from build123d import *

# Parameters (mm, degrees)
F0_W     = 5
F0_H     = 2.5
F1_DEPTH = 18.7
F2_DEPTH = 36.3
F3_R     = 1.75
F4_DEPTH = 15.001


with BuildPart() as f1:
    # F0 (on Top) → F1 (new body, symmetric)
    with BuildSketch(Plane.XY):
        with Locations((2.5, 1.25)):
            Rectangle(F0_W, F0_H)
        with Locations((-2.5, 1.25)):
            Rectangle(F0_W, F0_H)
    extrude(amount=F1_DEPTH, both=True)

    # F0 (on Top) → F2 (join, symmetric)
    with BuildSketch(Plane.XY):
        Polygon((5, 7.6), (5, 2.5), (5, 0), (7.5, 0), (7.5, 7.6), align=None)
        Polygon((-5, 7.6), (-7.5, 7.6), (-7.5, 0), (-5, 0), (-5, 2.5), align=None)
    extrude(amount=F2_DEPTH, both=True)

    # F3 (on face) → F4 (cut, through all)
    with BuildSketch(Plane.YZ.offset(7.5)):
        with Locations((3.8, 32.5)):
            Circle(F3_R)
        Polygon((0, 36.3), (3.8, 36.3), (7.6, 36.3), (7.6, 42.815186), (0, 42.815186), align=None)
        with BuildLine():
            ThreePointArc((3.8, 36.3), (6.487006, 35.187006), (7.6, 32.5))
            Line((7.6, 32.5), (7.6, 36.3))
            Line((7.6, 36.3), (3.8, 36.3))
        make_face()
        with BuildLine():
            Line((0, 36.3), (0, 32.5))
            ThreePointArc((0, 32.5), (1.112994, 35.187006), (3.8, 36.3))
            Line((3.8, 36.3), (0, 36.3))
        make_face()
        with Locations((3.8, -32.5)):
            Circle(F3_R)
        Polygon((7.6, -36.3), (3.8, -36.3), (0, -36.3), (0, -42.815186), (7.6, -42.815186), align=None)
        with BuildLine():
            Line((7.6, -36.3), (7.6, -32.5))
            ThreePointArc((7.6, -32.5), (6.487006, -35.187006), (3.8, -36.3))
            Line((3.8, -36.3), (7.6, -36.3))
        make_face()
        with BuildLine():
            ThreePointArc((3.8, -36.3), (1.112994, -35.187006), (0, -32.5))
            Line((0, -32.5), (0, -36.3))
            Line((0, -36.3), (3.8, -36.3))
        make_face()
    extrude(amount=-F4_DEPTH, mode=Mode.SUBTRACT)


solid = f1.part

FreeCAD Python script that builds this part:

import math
import FreeCAD as App
import Part
import Sketcher
Q = App.Units.Quantity

doc = App.newDocument("Part")
body = doc.addObject("PartDesign::Body", "Body")

sketch1 = body.newObject("Sketcher::SketchObject", "Sketch")
sketch1.AttachmentSupport = (doc.getObject("XY_Plane"), [""])
sketch1.MapMode = "FlatFace"
sketch1.addGeometry([
    Part.LineSegment(App.Vector(5, 0, 0), App.Vector(5, 2.5, 0)),
    Part.LineSegment(App.Vector(5, 2.5, 0), App.Vector(-5, 2.5, 0)),
    Part.LineSegment(App.Vector(-5, 2.5, 0), App.Vector(-5, 0, 0)),
    Part.LineSegment(App.Vector(-5, 0, 0), App.Vector(5, 0, 0)),
], False)
sketch1.addConstraint([
    Sketcher.Constraint("Coincident", 0, 2, 1, 1),
    Sketcher.Constraint("Coincident", 1, 2, 2, 1),
    Sketcher.Constraint("Coincident", 2, 2, 3, 1),
    Sketcher.Constraint("Coincident", 3, 2, 0, 1),
    Sketcher.Constraint("Vertical", 0),
    Sketcher.Constraint("Horizontal", 1),
    Sketcher.Constraint("Vertical", 2),
    Sketcher.Constraint("Horizontal", 3),
    Sketcher.Constraint("Symmetric", 2, 2, 3, 2, -1, 1),
    Sketcher.Constraint("DistanceX", 1, 2, 1, 1, Q("10 mm")),
    Sketcher.Constraint("DistanceY", 0, 1, 0, 2, Q("2.5 mm")),
])
pad1 = body.newObject("PartDesign::Pad", "Pad")
pad1.Profile = sketch1
pad1.Length = 37.4
pad1.Midplane = True

sketch2 = body.newObject("Sketcher::SketchObject", "Sketch001")
sketch2.AttachmentSupport = (doc.getObject("XY_Plane"), [""])
sketch2.MapMode = "FlatFace"
sketch2.addGeometry([
    Part.LineSegment(App.Vector(5, 7.6, 0), App.Vector(5, 0, 0)),
    Part.LineSegment(App.Vector(5, 0, 0), App.Vector(7.5, 0, 0)),
    Part.LineSegment(App.Vector(7.5, 0, 0), App.Vector(7.5, 7.6, 0)),
    Part.LineSegment(App.Vector(7.5, 7.6, 0), App.Vector(5, 7.6, 0)),
    Part.LineSegment(App.Vector(-5, 7.6, 0), App.Vector(-7.5, 7.6, 0)),
    Part.LineSegment(App.Vector(-7.5, 7.6, 0), App.Vector(-7.5, 0, 0)),
    Part.LineSegment(App.Vector(-7.5, 0, 0), App.Vector(-5, 0, 0)),
    Part.LineSegment(App.Vector(-5, 0, 0), App.Vector(-5, 7.6, 0)),
], False)
sketch2.addConstraint([
    Sketcher.Constraint("Coincident", 0, 2, 1, 1),
    Sketcher.Constraint("Coincident", 1, 2, 2, 1),
    Sketcher.Constraint("Coincident", 2, 2, 3, 1),
    Sketcher.Constraint("Coincident", 3, 2, 0, 1),
    Sketcher.Constraint("Coincident", 4, 2, 5, 1),
    Sketcher.Constraint("Coincident", 5, 2, 6, 1),
    Sketcher.Constraint("Coincident", 6, 2, 7, 1),
    Sketcher.Constraint("Coincident", 7, 2, 4, 1),
    Sketcher.Constraint("Vertical", 0),
    Sketcher.Constraint("Horizontal", 1),
    Sketcher.Constraint("Vertical", 2),
    Sketcher.Constraint("Horizontal", 3),
    Sketcher.Constraint("Horizontal", 4),
    Sketcher.Constraint("Vertical", 5),
    Sketcher.Constraint("Horizontal", 6),
    Sketcher.Constraint("Vertical", 7),
    Sketcher.Constraint("Symmetric", 1, 2, 5, 2, -1, 1),
    Sketcher.Constraint("Symmetric", 0, 2, 6, 2, -2),
    Sketcher.Constraint("Horizontal", 3, 2, 4, 2),
    Sketcher.Constraint("DistanceX", 1, 1, 1, 2, Q("2.5 mm")),
    Sketcher.Constraint("DistanceY", 0, 2, 0, 1, Q("7.6 mm")),
    Sketcher.Constraint("DistanceX", -1, 1, 0, 2, Q("5 mm")),
])
pad2 = body.newObject("PartDesign::Pad", "Pad001")
pad2.Profile = sketch2
pad2.Length = 72.6
pad2.Midplane = True

sketch3 = body.newObject("Sketcher::SketchObject", "Sketch002")
sketch3.AttachmentSupport = (doc.getObject("YZ_Plane"), [""])
sketch3.MapMode = "FlatFace"
sketch3.AttachmentOffset = App.Placement(App.Vector(0, 0, 7.5), App.Rotation())
sketch3.addGeometry([
    Part.Circle(App.Vector(3.8, 32.5, 0), App.Vector(0, 0, 1), 1.8),
    Part.ArcOfCircle(Part.Circle(App.Vector(3.8, 32.5, 0), App.Vector(0, 0, 1), 3.8), math.radians(0), math.radians(90)),
    Part.LineSegment(App.Vector(7.6, 32.5, 0), App.Vector(7.6, 42.8, 0)),
    Part.LineSegment(App.Vector(7.6, 42.8, 0), App.Vector(0, 42.8, 0)),
    Part.LineSegment(App.Vector(0, 42.8, 0), App.Vector(0, 32.5, 0)),
    Part.ArcOfCircle(Part.Circle(App.Vector(3.8, 32.5, 0), App.Vector(0, 0, 1), 3.8), math.radians(90), math.radians(180)),
    Part.Circle(App.Vector(3.8, -32.5, 0), App.Vector(0, 0, 1), 1.8),
    Part.LineSegment(App.Vector(0, -42.8, 0), App.Vector(7.6, -42.8, 0)),
    Part.LineSegment(App.Vector(7.6, -42.8, 0), App.Vector(7.6, -32.5, 0)),
    Part.ArcOfCircle(Part.Circle(App.Vector(3.8, -32.5, 0), App.Vector(0, 0, 1), 3.8), math.radians(-90), math.radians(0)),
    Part.ArcOfCircle(Part.Circle(App.Vector(3.8, -32.5, 0), App.Vector(0, 0, 1), 3.8), math.radians(180), math.radians(270)),
    Part.LineSegment(App.Vector(0, -32.5, 0), App.Vector(0, -42.8, 0)),
], False)
sketch3.addConstraint([
    Sketcher.Constraint("Tangent", 1, 1, 2, 1),
    Sketcher.Constraint("Coincident", 2, 2, 3, 1),
    Sketcher.Constraint("Coincident", 3, 2, 4, 1),
    Sketcher.Constraint("Tangent", 4, 2, 5, 2),
    Sketcher.Constraint("Tangent", 5, 1, 1, 2),
    Sketcher.Constraint("Coincident", 7, 2, 8, 1),
    Sketcher.Constraint("Tangent", 8, 2, 9, 2),
    Sketcher.Constraint("Tangent", 9, 1, 10, 2),
    Sketcher.Constraint("Tangent", 10, 1, 11, 1),
    Sketcher.Constraint("Coincident", 11, 2, 7, 1),
    Sketcher.Constraint("Vertical", 2),
    Sketcher.Constraint("Horizontal", 3),
    Sketcher.Constraint("Vertical", 4),
    Sketcher.Constraint("Horizontal", 7),
    Sketcher.Constraint("Vertical", 8),
    Sketcher.Constraint("Vertical", 11),
    Sketcher.Constraint("Coincident", 1, 3, 0, 3),
    Sketcher.Constraint("Coincident", 9, 3, 6, 3),
    Sketcher.Constraint("Equal", 1, 5),
    Sketcher.Constraint("Equal", 0, 6),
    Sketcher.Constraint("Equal", 5, 9),
    Sketcher.Constraint("Equal", 9, 10),
    Sketcher.Constraint("Symmetric", 4, 2, 10, 1, -1, 1),
    Sketcher.Constraint("Symmetric", 2, 2, 7, 2, -1),
    Sketcher.Constraint("Vertical", 10, 3, 5, 1),
    Sketcher.Constraint("Vertical", 5, 1, 9, 1),
    Sketcher.Constraint("Diameter", 0, Q("3.5 mm")),
    Sketcher.Constraint("Radius", 1, Q("3.799999 mm")),
    Sketcher.Constraint("DistanceY", 6, 3, 0, 3, Q("65 mm")),
    Sketcher.Constraint("DistanceY", 2, 1, 2, 2, Q("10.315186 mm")),
])
pocket1 = body.newObject("PartDesign::Pocket", "Pocket")
pocket1.Profile = sketch3
pocket1.Type = "ThroughAll"

doc.recompute()
